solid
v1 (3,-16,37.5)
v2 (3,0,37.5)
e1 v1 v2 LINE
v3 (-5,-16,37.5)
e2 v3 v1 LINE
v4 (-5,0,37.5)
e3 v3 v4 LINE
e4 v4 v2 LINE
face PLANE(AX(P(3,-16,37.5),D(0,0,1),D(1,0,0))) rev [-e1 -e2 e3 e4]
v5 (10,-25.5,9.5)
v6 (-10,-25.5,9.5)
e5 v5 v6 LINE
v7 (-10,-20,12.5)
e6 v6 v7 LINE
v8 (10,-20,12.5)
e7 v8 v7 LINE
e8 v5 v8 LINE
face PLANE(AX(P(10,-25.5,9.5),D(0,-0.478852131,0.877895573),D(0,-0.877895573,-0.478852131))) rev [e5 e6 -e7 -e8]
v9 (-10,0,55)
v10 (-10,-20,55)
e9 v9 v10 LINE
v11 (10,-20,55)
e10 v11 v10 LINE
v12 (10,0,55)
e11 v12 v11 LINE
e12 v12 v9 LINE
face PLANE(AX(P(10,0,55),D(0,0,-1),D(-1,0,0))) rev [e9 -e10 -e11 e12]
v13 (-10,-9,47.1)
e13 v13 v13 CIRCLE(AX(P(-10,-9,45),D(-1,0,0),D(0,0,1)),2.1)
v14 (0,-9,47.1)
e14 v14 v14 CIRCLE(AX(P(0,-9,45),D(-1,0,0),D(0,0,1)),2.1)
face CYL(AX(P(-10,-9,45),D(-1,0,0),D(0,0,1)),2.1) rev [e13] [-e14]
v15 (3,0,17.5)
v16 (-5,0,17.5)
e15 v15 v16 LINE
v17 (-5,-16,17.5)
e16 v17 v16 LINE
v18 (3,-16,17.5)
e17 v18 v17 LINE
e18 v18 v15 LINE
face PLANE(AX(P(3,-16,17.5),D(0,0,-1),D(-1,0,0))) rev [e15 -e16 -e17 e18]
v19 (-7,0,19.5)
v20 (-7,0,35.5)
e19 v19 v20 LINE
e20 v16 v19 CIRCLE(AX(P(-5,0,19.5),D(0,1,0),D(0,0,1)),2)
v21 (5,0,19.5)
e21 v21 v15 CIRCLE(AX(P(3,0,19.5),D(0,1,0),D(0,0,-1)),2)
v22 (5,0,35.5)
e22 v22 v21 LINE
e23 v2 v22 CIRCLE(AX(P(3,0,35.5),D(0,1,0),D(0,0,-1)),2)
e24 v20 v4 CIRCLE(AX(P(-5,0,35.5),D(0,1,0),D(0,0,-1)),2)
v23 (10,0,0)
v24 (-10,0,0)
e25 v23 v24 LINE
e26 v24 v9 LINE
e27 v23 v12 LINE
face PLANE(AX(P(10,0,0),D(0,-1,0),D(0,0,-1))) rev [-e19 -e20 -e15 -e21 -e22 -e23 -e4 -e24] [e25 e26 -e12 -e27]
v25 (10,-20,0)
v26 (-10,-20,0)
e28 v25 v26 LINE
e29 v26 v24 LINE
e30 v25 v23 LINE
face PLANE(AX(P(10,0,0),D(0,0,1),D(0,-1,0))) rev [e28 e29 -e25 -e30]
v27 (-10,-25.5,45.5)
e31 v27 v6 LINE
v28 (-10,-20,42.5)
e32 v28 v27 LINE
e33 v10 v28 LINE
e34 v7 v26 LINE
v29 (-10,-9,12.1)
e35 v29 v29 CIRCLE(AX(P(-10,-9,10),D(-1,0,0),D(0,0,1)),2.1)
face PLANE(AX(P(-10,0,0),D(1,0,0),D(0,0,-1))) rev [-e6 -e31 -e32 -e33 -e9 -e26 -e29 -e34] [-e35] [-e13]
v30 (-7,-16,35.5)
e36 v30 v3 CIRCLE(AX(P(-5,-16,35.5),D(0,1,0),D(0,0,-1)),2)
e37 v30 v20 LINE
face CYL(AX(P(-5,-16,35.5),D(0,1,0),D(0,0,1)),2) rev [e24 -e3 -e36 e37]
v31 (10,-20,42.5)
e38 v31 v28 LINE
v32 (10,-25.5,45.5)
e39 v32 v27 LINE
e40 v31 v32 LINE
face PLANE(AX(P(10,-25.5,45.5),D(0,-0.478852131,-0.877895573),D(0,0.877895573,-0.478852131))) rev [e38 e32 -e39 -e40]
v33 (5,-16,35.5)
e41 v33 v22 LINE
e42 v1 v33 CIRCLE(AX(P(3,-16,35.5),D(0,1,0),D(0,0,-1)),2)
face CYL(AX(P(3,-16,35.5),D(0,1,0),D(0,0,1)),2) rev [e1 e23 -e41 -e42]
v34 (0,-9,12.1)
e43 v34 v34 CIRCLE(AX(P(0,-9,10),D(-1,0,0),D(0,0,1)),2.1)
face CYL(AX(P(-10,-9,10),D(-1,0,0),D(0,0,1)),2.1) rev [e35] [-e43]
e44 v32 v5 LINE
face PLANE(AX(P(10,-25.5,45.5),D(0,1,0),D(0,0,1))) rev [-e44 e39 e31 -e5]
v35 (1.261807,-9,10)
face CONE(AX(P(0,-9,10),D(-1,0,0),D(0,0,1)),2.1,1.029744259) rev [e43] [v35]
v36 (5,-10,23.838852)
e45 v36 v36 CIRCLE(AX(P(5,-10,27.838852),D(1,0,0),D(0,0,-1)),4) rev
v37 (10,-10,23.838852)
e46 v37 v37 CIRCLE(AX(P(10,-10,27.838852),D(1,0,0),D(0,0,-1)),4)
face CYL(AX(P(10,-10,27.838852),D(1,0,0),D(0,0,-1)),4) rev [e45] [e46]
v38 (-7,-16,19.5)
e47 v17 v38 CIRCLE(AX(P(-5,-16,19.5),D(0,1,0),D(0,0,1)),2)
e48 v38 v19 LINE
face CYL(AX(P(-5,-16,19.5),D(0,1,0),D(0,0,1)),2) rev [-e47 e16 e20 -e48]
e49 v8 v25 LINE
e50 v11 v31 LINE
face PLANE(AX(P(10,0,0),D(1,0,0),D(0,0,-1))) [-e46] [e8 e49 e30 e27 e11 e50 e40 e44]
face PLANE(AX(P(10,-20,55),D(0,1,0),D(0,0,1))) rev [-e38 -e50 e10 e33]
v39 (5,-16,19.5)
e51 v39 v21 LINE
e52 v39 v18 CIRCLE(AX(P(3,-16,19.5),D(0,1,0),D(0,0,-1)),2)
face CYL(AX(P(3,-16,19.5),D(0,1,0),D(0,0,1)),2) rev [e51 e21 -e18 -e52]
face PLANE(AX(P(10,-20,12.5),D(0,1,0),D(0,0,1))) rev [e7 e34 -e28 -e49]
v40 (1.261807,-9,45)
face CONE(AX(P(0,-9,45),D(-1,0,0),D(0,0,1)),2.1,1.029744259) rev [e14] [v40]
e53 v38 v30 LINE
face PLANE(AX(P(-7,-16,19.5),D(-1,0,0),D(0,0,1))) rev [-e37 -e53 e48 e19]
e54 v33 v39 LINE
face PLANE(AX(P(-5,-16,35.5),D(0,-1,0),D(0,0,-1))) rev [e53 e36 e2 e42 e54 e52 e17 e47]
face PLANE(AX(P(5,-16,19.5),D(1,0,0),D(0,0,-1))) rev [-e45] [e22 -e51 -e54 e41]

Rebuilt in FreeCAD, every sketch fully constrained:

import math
import FreeCAD as App
import Part
import Sketcher
from FreeCAD import Vector
Q = App.Units.Quantity

doc = App.newDocument("Part")
body = doc.addObject("PartDesign::Body", "Body")

sketch1 = body.newObject("Sketcher::SketchObject", "Sketch")
sketch1.AttachmentSupport = (doc.getObject("YZ_Plane"), [""])
sketch1.MapMode = "FlatFace"
sketch1.addGeometry([
    Part.LineSegment(Vector(-20, 55, 0), Vector(-20, 42, 0)),
    Part.LineSegment(Vector(-20, 42, 0), Vector(-26, 46, 0)),
    Part.LineSegment(Vector(-26, 46, 0), Vector(-26, 10, 0)),
    Part.LineSegment(Vector(-26, 10, 0), Vector(-20, 12, 0)),
    Part.LineSegment(Vector(-20, 12, 0), Vector(-20, 0, 0)),
    Part.LineSegment(Vector(-20, 0, 0), Vector(0, 0, 0)),
    Part.LineSegment(Vector(0, 0, 0), Vector(0, 55, 0)),
    Part.LineSegment(Vector(0, 55, 0), Vector(-20, 55, 0)),
], False)
sketch1.addConstraint([
    Sketcher.Constraint("Coincident", 0, 2, 1, 1),
    Sketcher.Constraint("Coincident", 1, 2, 2, 1),
    Sketcher.Constraint("Coincident", 2, 2, 3, 1),
    Sketcher.Constraint("Coincident", 3, 2, 4, 1),
    Sketcher.Constraint("Coincident", 4, 2, 5, 1),
    Sketcher.Constraint("Coincident", 5, 2, 6, 1),
    Sketcher.Constraint("Coincident", 6, 2, 7, 1),
    Sketcher.Constraint("Coincident", 7, 2, 0, 1),
    Sketcher.Constraint("Vertical", 0),
    Sketcher.Constraint("Vertical", 2),
    Sketcher.Constraint("Vertical", 4),
    Sketcher.Constraint("Horizontal", 5),
    Sketcher.Constraint("Vertical", 6),
    Sketcher.Constraint("Horizontal", 7),
    Sketcher.Constraint("Coincident", 5, 2, -1, 1),
    Sketcher.Constraint("Vertical", 0, 2, 3, 2),
    Sketcher.Constraint("Equal", 0, 4),
    Sketcher.Constraint("Equal", 1, 3),
    Sketcher.Constraint("DistanceX", 5, 1, 5, 2, Q("20 mm")),
    Sketcher.Constraint("DistanceY", 2, 2, 2, 1, Q("36 mm")),
    Sketcher.Constraint("DistanceY", 6, 1, 6, 2, Q("55 mm")),
    Sketcher.Constraint("DistanceY", 0, 2, 0, 1, Q("12.5 mm")),
    Sketcher.Constraint("DistanceX", 1, 2, -1, 1, Q("25.5 mm")),
])
pad1 = body.newObject("PartDesign::Pad", "Pad")
pad1.Profile = sketch1
pad1.Length = 20
pad1.Midplane = True

sketch2 = body.newObject("Sketcher::SketchObject", "Sketch001")
sketch2.AttachmentSupport = (doc.getObject("YZ_Plane"), [""])
sketch2.MapMode = "FlatFace"
sketch2.AttachmentOffset = App.Placement(Vector(0, 0, 10), App.Rotation())
sketch2.addGeometry(Part.Circle(Vector(-10, 27.8, 0), Vector(0, 0, 1), 4), False)
sketch2.addConstraint([
    Sketcher.Constraint("Diameter", 0, Q("8 mm")),
    Sketcher.Constraint("DistanceX", 0, 3, -1, 1, Q("10 mm")),
    Sketcher.Constraint("DistanceY", -1, 1, 0, 3, Q("27.838852 mm")),
])
doc.recompute()
hole = body.newObject("PartDesign::Hole", "Hole")
hole.Profile = sketch2
hole.ThreadType = "None"
hole.Diameter = 8
hole.DepthType = "Dimension"
hole.Depth = 5
hole.DrillPoint = "Flat"

sketch3 = body.newObject("Sketcher::SketchObject", "Sketch002")
sketch3.AttachmentSupport = (doc.getObject("YZ_Plane"), [""])
sketch3.MapMode = "FlatFace"
sketch3.AttachmentOffset = App.Placement(Vector(0, 0, -10), App.Rotation())
sketch3.addGeometry([
    Part.Circle(Vector(-9, 10, 0), Vector(0, 0, 1), 2.1),
    Part.Circle(Vector(-9, 45, 0), Vector(0, 0, 1), 2.1),
], False)
sketch3.addConstraint([
    Sketcher.Constraint("Equal", 0, 1),
    Sketcher.Constraint("Vertical", 0, 3, 1, 3),
    Sketcher.Constraint("Diameter", 0, Q("4.2 mm")),
    Sketcher.Constraint("DistanceX", 0, 3, -1, 1, Q("9 mm")),
    Sketcher.Constraint("DistanceY", -1, 1, 0, 3, Q("10 mm")),
    Sketcher.Constraint("DistanceY", -1, 1, 1, 3, Q("45 mm")),
])
doc.recompute()
hole2 = body.newObject("PartDesign::Hole", "Hole001")
hole2.Profile = sketch3
hole2.ThreadType = "None"
hole2.Diameter = 4.2
hole2.DepthType = "Dimension"
hole2.Depth = 10
hole2.DrillPoint = "Angled"
hole2.DrillPointAngle = 118
hole2.Reversed = True

sketch4 = body.newObject("Sketcher::SketchObject", "Sketch003")
sketch4.AttachmentSupport = (doc.getObject("XZ_Plane"), [""])
sketch4.MapMode = "FlatFace"
sketch4.addGeometry([
    Part.LineSegment(Vector(-17.4, -7.4, 0), Vector(-17.4, 62.4, 0)),
    Part.LineSegment(Vector(-17.4, 62.4, 0), Vector(17.4, 62.4, 0)),
    Part.LineSegment(Vector(17.4, 62.4, 0), Vector(17.4, -7.4, 0)),
    Part.LineSegment(Vector(17.4, -7.4, 0), Vector(-17.4, -7.4, 0)),
    Part.LineSegment(Vector(10, 55, 0), Vector(-10, 55, 0)),
    Part.LineSegment(Vector(-10, 55, 0), Vector(-10, 0, 0)),
    Part.LineSegment(Vector(-10, 0, 0), Vector(10, 0, 0)),
    Part.LineSegment(Vector(10, 0, 0), Vector(10, 55, 0)),
    Part.LineSegment(Vector(3, 17.5, 0), Vector(-5, 17.5, 0)),
    Part.ArcOfCircle(Part.Circle(Vector(-5, 19.5, 0), Vector(0, 0, 1), 2), math.radians(-180), math.radians(-90)),
    Part.LineSegment(Vector(-7, 19.5, 0), Vector(-7, 35.5, 0)),
    Part.ArcOfCircle(Part.Circle(Vector(-5, 35.5, 0), Vector(0, 0, 1), 2), math.radians(90), math.radians(180)),
    Part.LineSegment(Vector(-5, 37.5, 0), Vector(3, 37.5, 0)),
    Part.ArcOfCircle(Part.Circle(Vector(3, 35.5, 0), Vector(0, 0, 1), 2), math.radians(0), math.radians(90)),
    Part.LineSegment(Vector(5, 35.5, 0), Vector(5, 19.5, 0)),
    Part.ArcOfCircle(Part.Circle(Vector(3, 19.5, 0), Vector(0, 0, 1), 2), math.radians(-90), math.radians(0)),
], False)
sketch4.addConstraint([
    Sketcher.Constraint("Coincident", 0, 2, 1, 1),
    Sketcher.Constraint("Coincident", 1, 2, 2, 1),
    Sketcher.Constraint("Coincident", 2, 2, 3, 1),
    Sketcher.Constraint("Coincident", 3, 2, 0, 1),
    Sketcher.Constraint("Coincident", 4, 2, 5, 1),
    Sketcher.Constraint("Coincident", 5, 2, 6, 1),
    Sketcher.Constraint("Coincident", 6, 2, 7, 1),
    Sketcher.Constraint("Coincident", 7, 2, 4, 1),
    Sketcher.Constraint("Tangent", 8, 2, 9, 2),
    Sketcher.Constraint("Tangent", 9, 1, 10, 1),
    Sketcher.Constraint("Tangent", 10, 2, 11, 2),
    Sketcher.Constraint("Tangent", 11, 1, 12, 1),
    Sketcher.Constraint("Tangent", 12, 2, 13, 2),
    Sketcher.Constraint("Tangent", 13, 1, 14, 1),
    Sketcher.Constraint("Tangent", 14, 2, 15, 2),
    Sketcher.Constraint("Tangent", 15, 1, 8, 1),
    Sketcher.Constraint("Vertical", 0),
    Sketcher.Constraint("Horizontal", 1),
    Sketcher.Constraint("Vertical", 2),
    Sketcher.Constraint("Horizontal", 3),
    Sketcher.Constraint("Horizontal", 4),
    Sketcher.Constraint("Vertical", 5),
    Sketcher.Constraint("Horizontal", 6),
    Sketcher.Constraint("Vertical", 7),
    Sketcher.Constraint("Horizontal", 8),
    Sketcher.Constraint("Vertical", 10),
    Sketcher.Constraint("Horizontal", 12),
    Sketcher.Constraint("Vertical", 14),
    Sketcher.Constraint("Equal", 9, 11),
    Sketcher.Constraint("Equal", 11, 13),
    Sketcher.Constraint("Equal", 13, 15),
    Sketcher.Constraint("Symmetric", 5, 2, 6, 2, -1, 1),
    Sketcher.Constraint("Radius", 9, Q("2 mm")),
    Sketcher.Constraint("DistanceX", 4, 2, 4, 1, Q("20 mm")),
    Sketcher.Constraint("DistanceX", 8, 2, 8, 1, Q("8 mm")),
    Sketcher.Constraint("DistanceY", 5, 2, 5, 1, Q("55 mm")),
    Sketcher.Constraint("DistanceY", 10, 1, 10, 2, Q("16 mm")),
    Sketcher.Constraint("DistanceX", 9, 3, -1, 1, Q("5 mm")),
    Sketcher.Constraint("DistanceY", -1, 1, 9, 3, Q("19.5 mm")),
    Sketcher.Constraint("DistanceX", 1, 1, 1, 2, Q("34.768 mm")),
    Sketcher.Constraint("DistanceY", 0, 1, 0, 2, Q("69.768 mm")),
    Sketcher.Constraint("DistanceX", 0, 2, -1, 1, Q("17.384 mm")),
    Sketcher.Constraint("DistanceY", -1, 1, 0, 2, Q("62.384 mm")),
])
pocket1 = body.newObject("PartDesign::Pocket", "Pocket")
pocket1.Profile = sketch4
pocket1.Length = 16
pocket1.Reversed = True

doc.recompute()
